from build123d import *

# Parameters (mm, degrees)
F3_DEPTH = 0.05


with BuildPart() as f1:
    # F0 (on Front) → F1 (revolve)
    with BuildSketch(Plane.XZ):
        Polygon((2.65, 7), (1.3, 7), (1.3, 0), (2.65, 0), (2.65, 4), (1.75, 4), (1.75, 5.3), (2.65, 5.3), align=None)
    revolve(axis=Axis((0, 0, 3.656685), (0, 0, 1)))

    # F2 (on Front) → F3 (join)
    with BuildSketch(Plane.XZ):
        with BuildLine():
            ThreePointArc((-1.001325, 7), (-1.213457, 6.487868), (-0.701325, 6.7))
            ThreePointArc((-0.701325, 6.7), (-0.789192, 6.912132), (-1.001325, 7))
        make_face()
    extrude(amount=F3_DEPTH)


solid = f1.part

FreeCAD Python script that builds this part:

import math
import FreeCAD as App
import Part
import Sketcher

V = App.Vector
Q = App.Units.Quantity

doc = App.newDocument("Part")
body = doc.addObject("PartDesign::Body", "Body")

sketch1 = body.newObject("Sketcher::SketchObject", "Sketch")
sketch1.AttachmentSupport = (doc.getObject("XZ_Plane"), [""])
sketch1.MapMode = "FlatFace"
sketch1.addGeometry([
    Part.LineSegment(V(2.6, 7, 0), V(1.3, 7, 0)),
    Part.LineSegment(V(1.3, 7, 0), V(1.3, 0, 0)),
    Part.LineSegment(V(1.3, 0, 0), V(2.6, 0, 0)),
    Part.LineSegment(V(2.6, 0, 0), V(2.6, 4, 0)),
    Part.LineSegment(V(2.6, 4, 0), V(1.8, 4, 0)),
    Part.LineSegment(V(1.8, 4, 0), V(1.8, 5.3, 0)),
    Part.LineSegment(V(1.8, 5.3, 0), V(2.6, 5.3, 0)),
    Part.LineSegment(V(2.6, 5.3, 0), V(2.6, 7, 0)),
], False)
sketch1.addConstraint([
    Sketcher.Constraint("Coincident", 0, 2, 1, 1),
    Sketcher.Constraint("Coincident", 1, 2, 2, 1),
    Sketcher.Constraint("Coincident", 2, 2, 3, 1),
    Sketcher.Constraint("Coincident", 3, 2, 4, 1),
    Sketcher.Constraint("Coincident", 4, 2, 5, 1),
    Sketcher.Constraint("Coincident", 5, 2, 6, 1),
    Sketcher.Constraint("Coincident", 6, 2, 7, 1),
    Sketcher.Constraint("Coincident", 7, 2, 0, 1),
    Sketcher.Constraint("Horizontal", 0),
    Sketcher.Constraint("Vertical", 1),
    Sketcher.Constraint("Horizontal", 2),
    Sketcher.Constraint("Vertical", 3),
    Sketcher.Constraint("Horizontal", 4),
    Sketcher.Constraint("Vertical", 5),
    Sketcher.Constraint("Horizontal", 6),
    Sketcher.Constraint("Vertical", 7),
    Sketcher.Constraint("PointOnObject", 1, 2, -1),
    Sketcher.Constraint("Vertical", 3, 2, 6, 2),
    Sketcher.Constraint("DistanceY", 1, 2, 1, 1, Q("7 mm")),
    Sketcher.Constraint("DistanceY", 3, 1, 3, 2, Q("4 mm")),
    Sketcher.Constraint("DistanceX", 4, 2, 4, 1, Q("0.9 mm")),
    Sketcher.Constraint("DistanceY", 5, 1, 5, 2, Q("1.3 mm")),
    Sketcher.Constraint("DistanceX", 0, 2, 0, 1, Q("1.35 mm")),
    Sketcher.Constraint("DistanceX", -1, 1, 0, 2, Q("1.3 mm")),
])
revolution = body.newObject("PartDesign::Revolution", "Revolution")
revolution.Profile = sketch1
revolution.ReferenceAxis = (sketch1, ["V_Axis"])
revolution.Angle = 360

sketch2 = body.newObject("Sketcher::SketchObject", "Sketch001")
sketch2.AttachmentSupport = (doc.getObject("XZ_Plane"), [""])
sketch2.MapMode = "FlatFace"
sketch2.addGeometry([
    Part.ArcOfCircle(Part.Circle(V(-1, 6.7, 0), V(0, 0, 1), 0.3), math.radians(90), math.radians(360)),
    Part.ArcOfCircle(Part.Circle(V(-1, 6.7, 0), V(0, 0, 1), 0.3), math.radians(0), math.radians(90)),
], False)
sketch2.addConstraint([
    Sketcher.Constraint("Coincident", 0, 1, 1, 2),
    Sketcher.Constraint("Coincident", 1, 1, 0, 2),
    Sketcher.Constraint("Equal", 0, 1),
    Sketcher.Constraint("Horizontal", 0, 3, 1, 1),
    Sketcher.Constraint("Vertical", 1, 3, 0, 1),
    Sketcher.Constraint("Radius", 0, Q("0.3 mm")),
    Sketcher.Constraint("DistanceY", -1, 1, 0, 1, Q("7 mm")),
    Sketcher.Constraint("DistanceX", 0, 3, -1, 1, Q("1.001325 mm")),
])
pad1 = body.newObject("PartDesign::Pad", "Pad")
pad1.Profile = sketch2
pad1.Length = 0.05

doc.recompute()
